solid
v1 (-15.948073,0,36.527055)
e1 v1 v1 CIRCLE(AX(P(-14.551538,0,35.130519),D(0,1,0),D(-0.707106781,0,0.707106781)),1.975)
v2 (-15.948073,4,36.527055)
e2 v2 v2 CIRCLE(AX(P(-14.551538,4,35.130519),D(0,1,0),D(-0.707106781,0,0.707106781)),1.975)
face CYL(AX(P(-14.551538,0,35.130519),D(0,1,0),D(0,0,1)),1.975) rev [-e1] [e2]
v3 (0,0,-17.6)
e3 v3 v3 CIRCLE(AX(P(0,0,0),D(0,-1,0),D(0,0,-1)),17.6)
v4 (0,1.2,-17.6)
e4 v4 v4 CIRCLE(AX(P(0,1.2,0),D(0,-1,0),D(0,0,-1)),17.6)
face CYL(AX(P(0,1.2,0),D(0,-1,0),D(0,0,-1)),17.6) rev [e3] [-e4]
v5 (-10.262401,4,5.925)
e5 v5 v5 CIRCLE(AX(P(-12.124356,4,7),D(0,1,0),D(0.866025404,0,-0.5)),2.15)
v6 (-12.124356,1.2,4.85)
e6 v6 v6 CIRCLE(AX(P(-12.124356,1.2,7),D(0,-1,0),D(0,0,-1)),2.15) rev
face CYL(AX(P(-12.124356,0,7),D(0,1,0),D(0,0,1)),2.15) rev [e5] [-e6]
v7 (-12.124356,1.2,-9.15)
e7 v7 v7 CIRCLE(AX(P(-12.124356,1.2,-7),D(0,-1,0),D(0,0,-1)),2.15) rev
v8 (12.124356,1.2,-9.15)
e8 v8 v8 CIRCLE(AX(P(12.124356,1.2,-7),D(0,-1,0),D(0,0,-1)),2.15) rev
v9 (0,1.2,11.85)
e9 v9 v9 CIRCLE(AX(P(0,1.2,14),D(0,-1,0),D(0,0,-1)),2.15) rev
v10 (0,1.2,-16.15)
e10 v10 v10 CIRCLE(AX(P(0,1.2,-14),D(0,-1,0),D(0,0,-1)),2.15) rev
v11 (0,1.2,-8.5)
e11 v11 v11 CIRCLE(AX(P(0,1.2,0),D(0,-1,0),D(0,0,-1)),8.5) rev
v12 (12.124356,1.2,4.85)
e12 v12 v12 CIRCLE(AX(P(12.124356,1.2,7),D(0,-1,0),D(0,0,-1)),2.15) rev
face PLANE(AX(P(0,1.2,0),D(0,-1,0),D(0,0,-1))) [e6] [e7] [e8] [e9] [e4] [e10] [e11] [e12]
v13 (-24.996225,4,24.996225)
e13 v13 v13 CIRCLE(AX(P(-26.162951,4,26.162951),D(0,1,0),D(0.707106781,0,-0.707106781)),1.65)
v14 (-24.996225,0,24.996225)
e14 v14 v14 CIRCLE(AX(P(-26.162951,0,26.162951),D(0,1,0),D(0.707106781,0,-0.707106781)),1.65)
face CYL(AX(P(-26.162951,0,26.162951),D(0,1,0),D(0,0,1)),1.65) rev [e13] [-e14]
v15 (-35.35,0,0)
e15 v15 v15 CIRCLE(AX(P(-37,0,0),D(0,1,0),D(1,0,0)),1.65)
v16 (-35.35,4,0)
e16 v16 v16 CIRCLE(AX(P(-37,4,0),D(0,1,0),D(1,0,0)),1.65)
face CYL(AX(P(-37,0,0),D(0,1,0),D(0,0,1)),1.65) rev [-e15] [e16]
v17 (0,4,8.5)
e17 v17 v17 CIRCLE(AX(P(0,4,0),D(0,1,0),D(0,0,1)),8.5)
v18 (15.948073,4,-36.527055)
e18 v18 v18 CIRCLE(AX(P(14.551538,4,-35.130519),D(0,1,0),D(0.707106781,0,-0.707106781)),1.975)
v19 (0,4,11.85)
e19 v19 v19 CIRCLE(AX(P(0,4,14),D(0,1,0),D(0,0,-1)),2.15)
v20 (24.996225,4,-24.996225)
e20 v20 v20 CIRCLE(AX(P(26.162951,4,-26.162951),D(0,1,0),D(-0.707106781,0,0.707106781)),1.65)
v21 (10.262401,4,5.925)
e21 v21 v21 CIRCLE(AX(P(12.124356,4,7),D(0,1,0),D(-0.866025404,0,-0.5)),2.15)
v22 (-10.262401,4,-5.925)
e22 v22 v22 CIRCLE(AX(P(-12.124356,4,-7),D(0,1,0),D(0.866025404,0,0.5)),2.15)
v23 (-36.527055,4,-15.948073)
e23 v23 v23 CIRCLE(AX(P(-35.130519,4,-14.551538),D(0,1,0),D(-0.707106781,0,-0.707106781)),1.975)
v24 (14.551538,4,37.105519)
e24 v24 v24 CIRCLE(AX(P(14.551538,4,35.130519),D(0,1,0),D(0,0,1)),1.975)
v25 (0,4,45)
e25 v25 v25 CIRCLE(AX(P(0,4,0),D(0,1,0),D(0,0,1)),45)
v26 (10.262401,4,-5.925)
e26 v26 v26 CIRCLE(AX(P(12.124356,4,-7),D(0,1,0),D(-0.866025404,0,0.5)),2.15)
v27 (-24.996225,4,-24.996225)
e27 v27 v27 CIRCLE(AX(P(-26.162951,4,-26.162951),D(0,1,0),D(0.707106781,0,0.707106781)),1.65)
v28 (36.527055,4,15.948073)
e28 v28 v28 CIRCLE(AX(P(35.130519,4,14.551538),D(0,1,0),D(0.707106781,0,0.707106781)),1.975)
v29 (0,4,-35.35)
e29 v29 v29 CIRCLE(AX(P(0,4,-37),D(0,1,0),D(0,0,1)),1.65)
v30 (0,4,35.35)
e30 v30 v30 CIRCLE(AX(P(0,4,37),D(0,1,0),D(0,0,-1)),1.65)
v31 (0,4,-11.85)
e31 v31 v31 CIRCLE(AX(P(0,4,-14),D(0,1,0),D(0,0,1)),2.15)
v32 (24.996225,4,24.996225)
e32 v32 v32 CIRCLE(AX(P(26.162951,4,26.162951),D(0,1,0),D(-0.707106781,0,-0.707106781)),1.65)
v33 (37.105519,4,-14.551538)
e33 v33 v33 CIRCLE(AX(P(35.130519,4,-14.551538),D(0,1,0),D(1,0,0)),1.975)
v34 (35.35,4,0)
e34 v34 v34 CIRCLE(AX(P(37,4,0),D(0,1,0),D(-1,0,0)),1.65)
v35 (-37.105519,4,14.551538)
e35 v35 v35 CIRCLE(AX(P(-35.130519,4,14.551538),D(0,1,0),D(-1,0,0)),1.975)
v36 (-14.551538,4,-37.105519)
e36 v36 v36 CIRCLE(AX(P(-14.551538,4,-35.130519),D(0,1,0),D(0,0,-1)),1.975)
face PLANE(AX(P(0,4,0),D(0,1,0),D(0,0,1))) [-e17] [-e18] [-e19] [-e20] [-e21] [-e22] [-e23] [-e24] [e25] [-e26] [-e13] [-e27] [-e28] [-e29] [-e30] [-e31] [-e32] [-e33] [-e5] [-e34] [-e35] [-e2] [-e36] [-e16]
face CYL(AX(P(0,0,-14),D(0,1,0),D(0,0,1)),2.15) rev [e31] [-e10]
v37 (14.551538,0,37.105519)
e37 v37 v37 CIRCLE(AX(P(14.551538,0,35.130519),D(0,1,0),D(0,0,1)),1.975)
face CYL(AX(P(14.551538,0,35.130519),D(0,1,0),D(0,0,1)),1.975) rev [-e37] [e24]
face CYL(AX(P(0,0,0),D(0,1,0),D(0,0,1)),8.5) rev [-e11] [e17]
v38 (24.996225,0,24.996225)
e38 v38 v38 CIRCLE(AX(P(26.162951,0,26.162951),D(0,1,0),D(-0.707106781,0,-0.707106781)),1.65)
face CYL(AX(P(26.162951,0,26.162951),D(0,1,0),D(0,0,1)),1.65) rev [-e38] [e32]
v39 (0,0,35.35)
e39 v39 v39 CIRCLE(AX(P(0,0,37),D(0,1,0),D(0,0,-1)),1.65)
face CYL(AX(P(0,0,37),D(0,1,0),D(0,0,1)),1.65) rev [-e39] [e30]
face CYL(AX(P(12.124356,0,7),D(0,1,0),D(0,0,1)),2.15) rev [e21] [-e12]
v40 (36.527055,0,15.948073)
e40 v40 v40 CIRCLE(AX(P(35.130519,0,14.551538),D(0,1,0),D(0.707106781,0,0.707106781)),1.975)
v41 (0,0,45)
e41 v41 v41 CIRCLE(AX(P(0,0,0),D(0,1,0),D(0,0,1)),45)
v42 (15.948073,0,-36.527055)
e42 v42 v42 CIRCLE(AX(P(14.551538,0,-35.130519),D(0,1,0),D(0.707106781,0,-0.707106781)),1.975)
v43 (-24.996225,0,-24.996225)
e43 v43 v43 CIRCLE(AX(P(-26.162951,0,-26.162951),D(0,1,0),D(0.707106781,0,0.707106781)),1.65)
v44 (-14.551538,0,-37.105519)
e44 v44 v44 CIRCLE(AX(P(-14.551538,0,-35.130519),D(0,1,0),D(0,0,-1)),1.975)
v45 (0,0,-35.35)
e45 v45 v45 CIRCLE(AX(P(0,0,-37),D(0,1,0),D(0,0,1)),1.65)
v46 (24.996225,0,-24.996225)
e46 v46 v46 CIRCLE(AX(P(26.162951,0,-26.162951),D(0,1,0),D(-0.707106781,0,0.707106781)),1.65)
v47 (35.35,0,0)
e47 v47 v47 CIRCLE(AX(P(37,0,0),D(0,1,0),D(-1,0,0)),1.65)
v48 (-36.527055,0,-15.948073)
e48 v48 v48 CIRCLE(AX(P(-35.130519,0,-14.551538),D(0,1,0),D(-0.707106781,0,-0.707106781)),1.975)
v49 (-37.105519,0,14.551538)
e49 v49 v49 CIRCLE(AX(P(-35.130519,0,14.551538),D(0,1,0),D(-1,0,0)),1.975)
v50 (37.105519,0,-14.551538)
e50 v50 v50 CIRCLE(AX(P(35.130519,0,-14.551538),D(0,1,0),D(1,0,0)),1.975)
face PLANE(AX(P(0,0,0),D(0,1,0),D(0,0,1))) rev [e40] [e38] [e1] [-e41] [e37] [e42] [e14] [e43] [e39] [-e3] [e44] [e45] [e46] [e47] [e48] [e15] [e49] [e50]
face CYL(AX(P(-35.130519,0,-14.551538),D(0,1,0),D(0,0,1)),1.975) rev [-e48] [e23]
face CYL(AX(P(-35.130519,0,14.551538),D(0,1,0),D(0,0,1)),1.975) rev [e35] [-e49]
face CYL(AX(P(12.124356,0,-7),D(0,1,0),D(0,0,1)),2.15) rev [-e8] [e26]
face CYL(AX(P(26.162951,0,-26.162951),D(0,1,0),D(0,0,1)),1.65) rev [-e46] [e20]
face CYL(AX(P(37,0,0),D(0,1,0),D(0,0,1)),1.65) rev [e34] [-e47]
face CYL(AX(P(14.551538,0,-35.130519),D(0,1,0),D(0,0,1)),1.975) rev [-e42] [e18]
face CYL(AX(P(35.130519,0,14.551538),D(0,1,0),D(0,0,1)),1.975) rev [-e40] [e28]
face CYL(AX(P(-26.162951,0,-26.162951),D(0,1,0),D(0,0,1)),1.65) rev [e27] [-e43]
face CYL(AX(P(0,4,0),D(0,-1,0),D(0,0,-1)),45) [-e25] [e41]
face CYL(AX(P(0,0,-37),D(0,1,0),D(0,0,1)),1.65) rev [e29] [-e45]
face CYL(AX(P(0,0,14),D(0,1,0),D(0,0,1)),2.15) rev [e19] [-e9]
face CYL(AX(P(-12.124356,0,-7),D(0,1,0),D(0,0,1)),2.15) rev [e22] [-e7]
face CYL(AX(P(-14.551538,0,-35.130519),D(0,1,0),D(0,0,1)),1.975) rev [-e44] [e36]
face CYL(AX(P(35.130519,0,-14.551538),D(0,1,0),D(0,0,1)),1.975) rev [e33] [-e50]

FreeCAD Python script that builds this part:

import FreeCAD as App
import Part
import Sketcher

V = App.Vector

doc = App.newDocument("Part")
body = doc.addObject("PartDesign::Body", "Body")

# Sketch on XZ plane
sketch1 = body.newObject("Sketcher::SketchObject", "Sketch")
sketch1.AttachmentSupport = (doc.getObject("XZ_Plane"), [""])
sketch1.MapMode = "FlatFace"
sketch1.addGeometry(Part.Circle(V(0, 0, 0), V(0, 0, 1), 45), False)
sketch1.addConstraint([
    Sketcher.Constraint("Coincident", 0, 3, -1, 1),
    Sketcher.Constraint("Diameter", 0, 90.0),
])
pad1 = body.newObject("PartDesign::Pad", "Pad")
pad1.Profile = sketch1
pad1.Length = 4
pad1.Reversed = True

# Sketch on XZ plane
sketch2 = body.newObject("Sketcher::SketchObject", "Sketch001")
sketch2.AttachmentSupport = (doc.getObject("XZ_Plane"), [""])
sketch2.MapMode = "FlatFace"
sketch2.AttachmentOffset = App.Placement(V(0, 0, -4), App.Rotation())
sketch2.addGeometry(Part.Circle(V(0, -14, 0), V(0, 0, 1), 2.15), False)
sketch2.addConstraint([
    Sketcher.Constraint("PointOnObject", 0, 3, -2),
    Sketcher.Constraint("Diameter", 0, 4.3),
    Sketcher.Constraint("DistanceY", 0, 3, -1, 1, 14.0),
])
pocket1 = body.newObject("PartDesign::Pocket", "Pocket")
pocket1.Profile = sketch2
pocket1.Length = 129.530389
pocket1.Midplane = True
doc.recompute()

polarpattern = body.newObject("PartDesign::PolarPattern", "PolarPattern")
polarpattern.Originals = [pocket1]
polarpattern.Axis = (doc.getObject("Y_Axis"), [""])
polarpattern.Angle = 360
polarpattern.Occurrences = 6
body.Tip = polarpattern

# Sketch on XZ plane
sketch3 = body.newObject("Sketcher::SketchObject", "Sketch002")
sketch3.AttachmentSupport = (doc.getObject("XZ_Plane"), [""])
sketch3.MapMode = "FlatFace"
sketch3.AttachmentOffset = App.Placement(V(0, 0, -4), App.Rotation())
sketch3.addGeometry(Part.Circle(V(0, 0, 0), V(0, 0, 1), 8.5), False)
sketch3.addConstraint([
    Sketcher.Constraint("Coincident", 0, 3, -1, 1),
    Sketcher.Constraint("Diameter", 0, 17.0),
])
pocket2 = body.newObject("PartDesign::Pocket", "Pocket001")
pocket2.Profile = sketch3
pocket2.Type = "ThroughAll"
pocket2.Midplane = True

# Sketch on XZ plane
sketch4 = body.newObject("Sketcher::SketchObject", "Sketch003")
sketch4.AttachmentSupport = (doc.getObject("XZ_Plane"), [""])
sketch4.MapMode = "FlatFace"
sketch4.AttachmentOffset = App.Placement(V(0, 0, -4), App.Rotation())
sketch4.addGeometry(Part.Circle(V(0, -37, 0), V(0, 0, 1), 1.65), False)
sketch4.addConstraint([
    Sketcher.Constraint("PointOnObject", 0, 3, -2),
    Sketcher.Constraint("Diameter", 0, 3.3),
    Sketcher.Constraint("DistanceY", 0, 3, -1, 1, 37.0),
])
pocket3 = body.newObject("PartDesign::Pocket", "Pocket002")
pocket3.Profile = sketch4
pocket3.Length = 129.530389
pocket3.Midplane = True
doc.recompute()

polarpattern2 = body.newObject("PartDesign::PolarPattern", "PolarPattern001")
polarpattern2.Originals = [pocket3]
polarpattern2.Axis = (doc.getObject("Y_Axis"), [""])
polarpattern2.Angle = 360
polarpattern2.Occurrences = 8
body.Tip = polarpattern2

# Sketch on XZ plane
sketch5 = body.newObject("Sketcher::SketchObject", "Sketch004")
sketch5.AttachmentSupport = (doc.getObject("XZ_Plane"), [""])
sketch5.MapMode = "FlatFace"
sketch5.addGeometry(Part.Circle(V(0, 0, 0), V(0, 0, 1), 17.6), False)
sketch5.addConstraint([
    Sketcher.Constraint("Coincident", 0, 3, -1, 1),
    Sketcher.Constraint("Diameter", 0, 35.2),
])
pocket4 = body.newObject("PartDesign::Pocket", "Pocket003")
pocket4.Profile = sketch5
pocket4.Length = 1.2

# Sketch on XZ plane
sketch6 = body.newObject("Sketcher::SketchObject", "Sketch005")
sketch6.AttachmentSupport = (doc.getObject("XZ_Plane"), [""])
sketch6.MapMode = "FlatFace"
sketch6.AttachmentOffset = App.Placement(V(0, 0, -4), App.Rotation())
sketch6.addGeometry(Part.Circle(V(14.551538, 35.130519, 0), V(0, 0, 1), 1.975), False)
sketch6.addConstraint([
    Sketcher.Constraint("Diameter", 0, 3.95),
    Sketcher.Constraint("DistanceY", -1, 1, 0, 3, 35.130519),
    Sketcher.Constraint("DistanceX", -1, 1, 0, 3, 14.551538),
])
pocket5 = body.newObject("PartDesign::Pocket", "Pocket004")
pocket5.Profile = sketch6
pocket5.Length = 129.530389
pocket5.Midplane = True
doc.recompute()

polarpattern3 = body.newObject("PartDesign::PolarPattern", "PolarPattern002")
polarpattern3.Originals = [pocket5]
polarpattern3.Axis = (doc.getObject("Y_Axis"), [""])
polarpattern3.Angle = 360
polarpattern3.Occurrences = 8
body.Tip = polarpattern3

doc.recompute()
